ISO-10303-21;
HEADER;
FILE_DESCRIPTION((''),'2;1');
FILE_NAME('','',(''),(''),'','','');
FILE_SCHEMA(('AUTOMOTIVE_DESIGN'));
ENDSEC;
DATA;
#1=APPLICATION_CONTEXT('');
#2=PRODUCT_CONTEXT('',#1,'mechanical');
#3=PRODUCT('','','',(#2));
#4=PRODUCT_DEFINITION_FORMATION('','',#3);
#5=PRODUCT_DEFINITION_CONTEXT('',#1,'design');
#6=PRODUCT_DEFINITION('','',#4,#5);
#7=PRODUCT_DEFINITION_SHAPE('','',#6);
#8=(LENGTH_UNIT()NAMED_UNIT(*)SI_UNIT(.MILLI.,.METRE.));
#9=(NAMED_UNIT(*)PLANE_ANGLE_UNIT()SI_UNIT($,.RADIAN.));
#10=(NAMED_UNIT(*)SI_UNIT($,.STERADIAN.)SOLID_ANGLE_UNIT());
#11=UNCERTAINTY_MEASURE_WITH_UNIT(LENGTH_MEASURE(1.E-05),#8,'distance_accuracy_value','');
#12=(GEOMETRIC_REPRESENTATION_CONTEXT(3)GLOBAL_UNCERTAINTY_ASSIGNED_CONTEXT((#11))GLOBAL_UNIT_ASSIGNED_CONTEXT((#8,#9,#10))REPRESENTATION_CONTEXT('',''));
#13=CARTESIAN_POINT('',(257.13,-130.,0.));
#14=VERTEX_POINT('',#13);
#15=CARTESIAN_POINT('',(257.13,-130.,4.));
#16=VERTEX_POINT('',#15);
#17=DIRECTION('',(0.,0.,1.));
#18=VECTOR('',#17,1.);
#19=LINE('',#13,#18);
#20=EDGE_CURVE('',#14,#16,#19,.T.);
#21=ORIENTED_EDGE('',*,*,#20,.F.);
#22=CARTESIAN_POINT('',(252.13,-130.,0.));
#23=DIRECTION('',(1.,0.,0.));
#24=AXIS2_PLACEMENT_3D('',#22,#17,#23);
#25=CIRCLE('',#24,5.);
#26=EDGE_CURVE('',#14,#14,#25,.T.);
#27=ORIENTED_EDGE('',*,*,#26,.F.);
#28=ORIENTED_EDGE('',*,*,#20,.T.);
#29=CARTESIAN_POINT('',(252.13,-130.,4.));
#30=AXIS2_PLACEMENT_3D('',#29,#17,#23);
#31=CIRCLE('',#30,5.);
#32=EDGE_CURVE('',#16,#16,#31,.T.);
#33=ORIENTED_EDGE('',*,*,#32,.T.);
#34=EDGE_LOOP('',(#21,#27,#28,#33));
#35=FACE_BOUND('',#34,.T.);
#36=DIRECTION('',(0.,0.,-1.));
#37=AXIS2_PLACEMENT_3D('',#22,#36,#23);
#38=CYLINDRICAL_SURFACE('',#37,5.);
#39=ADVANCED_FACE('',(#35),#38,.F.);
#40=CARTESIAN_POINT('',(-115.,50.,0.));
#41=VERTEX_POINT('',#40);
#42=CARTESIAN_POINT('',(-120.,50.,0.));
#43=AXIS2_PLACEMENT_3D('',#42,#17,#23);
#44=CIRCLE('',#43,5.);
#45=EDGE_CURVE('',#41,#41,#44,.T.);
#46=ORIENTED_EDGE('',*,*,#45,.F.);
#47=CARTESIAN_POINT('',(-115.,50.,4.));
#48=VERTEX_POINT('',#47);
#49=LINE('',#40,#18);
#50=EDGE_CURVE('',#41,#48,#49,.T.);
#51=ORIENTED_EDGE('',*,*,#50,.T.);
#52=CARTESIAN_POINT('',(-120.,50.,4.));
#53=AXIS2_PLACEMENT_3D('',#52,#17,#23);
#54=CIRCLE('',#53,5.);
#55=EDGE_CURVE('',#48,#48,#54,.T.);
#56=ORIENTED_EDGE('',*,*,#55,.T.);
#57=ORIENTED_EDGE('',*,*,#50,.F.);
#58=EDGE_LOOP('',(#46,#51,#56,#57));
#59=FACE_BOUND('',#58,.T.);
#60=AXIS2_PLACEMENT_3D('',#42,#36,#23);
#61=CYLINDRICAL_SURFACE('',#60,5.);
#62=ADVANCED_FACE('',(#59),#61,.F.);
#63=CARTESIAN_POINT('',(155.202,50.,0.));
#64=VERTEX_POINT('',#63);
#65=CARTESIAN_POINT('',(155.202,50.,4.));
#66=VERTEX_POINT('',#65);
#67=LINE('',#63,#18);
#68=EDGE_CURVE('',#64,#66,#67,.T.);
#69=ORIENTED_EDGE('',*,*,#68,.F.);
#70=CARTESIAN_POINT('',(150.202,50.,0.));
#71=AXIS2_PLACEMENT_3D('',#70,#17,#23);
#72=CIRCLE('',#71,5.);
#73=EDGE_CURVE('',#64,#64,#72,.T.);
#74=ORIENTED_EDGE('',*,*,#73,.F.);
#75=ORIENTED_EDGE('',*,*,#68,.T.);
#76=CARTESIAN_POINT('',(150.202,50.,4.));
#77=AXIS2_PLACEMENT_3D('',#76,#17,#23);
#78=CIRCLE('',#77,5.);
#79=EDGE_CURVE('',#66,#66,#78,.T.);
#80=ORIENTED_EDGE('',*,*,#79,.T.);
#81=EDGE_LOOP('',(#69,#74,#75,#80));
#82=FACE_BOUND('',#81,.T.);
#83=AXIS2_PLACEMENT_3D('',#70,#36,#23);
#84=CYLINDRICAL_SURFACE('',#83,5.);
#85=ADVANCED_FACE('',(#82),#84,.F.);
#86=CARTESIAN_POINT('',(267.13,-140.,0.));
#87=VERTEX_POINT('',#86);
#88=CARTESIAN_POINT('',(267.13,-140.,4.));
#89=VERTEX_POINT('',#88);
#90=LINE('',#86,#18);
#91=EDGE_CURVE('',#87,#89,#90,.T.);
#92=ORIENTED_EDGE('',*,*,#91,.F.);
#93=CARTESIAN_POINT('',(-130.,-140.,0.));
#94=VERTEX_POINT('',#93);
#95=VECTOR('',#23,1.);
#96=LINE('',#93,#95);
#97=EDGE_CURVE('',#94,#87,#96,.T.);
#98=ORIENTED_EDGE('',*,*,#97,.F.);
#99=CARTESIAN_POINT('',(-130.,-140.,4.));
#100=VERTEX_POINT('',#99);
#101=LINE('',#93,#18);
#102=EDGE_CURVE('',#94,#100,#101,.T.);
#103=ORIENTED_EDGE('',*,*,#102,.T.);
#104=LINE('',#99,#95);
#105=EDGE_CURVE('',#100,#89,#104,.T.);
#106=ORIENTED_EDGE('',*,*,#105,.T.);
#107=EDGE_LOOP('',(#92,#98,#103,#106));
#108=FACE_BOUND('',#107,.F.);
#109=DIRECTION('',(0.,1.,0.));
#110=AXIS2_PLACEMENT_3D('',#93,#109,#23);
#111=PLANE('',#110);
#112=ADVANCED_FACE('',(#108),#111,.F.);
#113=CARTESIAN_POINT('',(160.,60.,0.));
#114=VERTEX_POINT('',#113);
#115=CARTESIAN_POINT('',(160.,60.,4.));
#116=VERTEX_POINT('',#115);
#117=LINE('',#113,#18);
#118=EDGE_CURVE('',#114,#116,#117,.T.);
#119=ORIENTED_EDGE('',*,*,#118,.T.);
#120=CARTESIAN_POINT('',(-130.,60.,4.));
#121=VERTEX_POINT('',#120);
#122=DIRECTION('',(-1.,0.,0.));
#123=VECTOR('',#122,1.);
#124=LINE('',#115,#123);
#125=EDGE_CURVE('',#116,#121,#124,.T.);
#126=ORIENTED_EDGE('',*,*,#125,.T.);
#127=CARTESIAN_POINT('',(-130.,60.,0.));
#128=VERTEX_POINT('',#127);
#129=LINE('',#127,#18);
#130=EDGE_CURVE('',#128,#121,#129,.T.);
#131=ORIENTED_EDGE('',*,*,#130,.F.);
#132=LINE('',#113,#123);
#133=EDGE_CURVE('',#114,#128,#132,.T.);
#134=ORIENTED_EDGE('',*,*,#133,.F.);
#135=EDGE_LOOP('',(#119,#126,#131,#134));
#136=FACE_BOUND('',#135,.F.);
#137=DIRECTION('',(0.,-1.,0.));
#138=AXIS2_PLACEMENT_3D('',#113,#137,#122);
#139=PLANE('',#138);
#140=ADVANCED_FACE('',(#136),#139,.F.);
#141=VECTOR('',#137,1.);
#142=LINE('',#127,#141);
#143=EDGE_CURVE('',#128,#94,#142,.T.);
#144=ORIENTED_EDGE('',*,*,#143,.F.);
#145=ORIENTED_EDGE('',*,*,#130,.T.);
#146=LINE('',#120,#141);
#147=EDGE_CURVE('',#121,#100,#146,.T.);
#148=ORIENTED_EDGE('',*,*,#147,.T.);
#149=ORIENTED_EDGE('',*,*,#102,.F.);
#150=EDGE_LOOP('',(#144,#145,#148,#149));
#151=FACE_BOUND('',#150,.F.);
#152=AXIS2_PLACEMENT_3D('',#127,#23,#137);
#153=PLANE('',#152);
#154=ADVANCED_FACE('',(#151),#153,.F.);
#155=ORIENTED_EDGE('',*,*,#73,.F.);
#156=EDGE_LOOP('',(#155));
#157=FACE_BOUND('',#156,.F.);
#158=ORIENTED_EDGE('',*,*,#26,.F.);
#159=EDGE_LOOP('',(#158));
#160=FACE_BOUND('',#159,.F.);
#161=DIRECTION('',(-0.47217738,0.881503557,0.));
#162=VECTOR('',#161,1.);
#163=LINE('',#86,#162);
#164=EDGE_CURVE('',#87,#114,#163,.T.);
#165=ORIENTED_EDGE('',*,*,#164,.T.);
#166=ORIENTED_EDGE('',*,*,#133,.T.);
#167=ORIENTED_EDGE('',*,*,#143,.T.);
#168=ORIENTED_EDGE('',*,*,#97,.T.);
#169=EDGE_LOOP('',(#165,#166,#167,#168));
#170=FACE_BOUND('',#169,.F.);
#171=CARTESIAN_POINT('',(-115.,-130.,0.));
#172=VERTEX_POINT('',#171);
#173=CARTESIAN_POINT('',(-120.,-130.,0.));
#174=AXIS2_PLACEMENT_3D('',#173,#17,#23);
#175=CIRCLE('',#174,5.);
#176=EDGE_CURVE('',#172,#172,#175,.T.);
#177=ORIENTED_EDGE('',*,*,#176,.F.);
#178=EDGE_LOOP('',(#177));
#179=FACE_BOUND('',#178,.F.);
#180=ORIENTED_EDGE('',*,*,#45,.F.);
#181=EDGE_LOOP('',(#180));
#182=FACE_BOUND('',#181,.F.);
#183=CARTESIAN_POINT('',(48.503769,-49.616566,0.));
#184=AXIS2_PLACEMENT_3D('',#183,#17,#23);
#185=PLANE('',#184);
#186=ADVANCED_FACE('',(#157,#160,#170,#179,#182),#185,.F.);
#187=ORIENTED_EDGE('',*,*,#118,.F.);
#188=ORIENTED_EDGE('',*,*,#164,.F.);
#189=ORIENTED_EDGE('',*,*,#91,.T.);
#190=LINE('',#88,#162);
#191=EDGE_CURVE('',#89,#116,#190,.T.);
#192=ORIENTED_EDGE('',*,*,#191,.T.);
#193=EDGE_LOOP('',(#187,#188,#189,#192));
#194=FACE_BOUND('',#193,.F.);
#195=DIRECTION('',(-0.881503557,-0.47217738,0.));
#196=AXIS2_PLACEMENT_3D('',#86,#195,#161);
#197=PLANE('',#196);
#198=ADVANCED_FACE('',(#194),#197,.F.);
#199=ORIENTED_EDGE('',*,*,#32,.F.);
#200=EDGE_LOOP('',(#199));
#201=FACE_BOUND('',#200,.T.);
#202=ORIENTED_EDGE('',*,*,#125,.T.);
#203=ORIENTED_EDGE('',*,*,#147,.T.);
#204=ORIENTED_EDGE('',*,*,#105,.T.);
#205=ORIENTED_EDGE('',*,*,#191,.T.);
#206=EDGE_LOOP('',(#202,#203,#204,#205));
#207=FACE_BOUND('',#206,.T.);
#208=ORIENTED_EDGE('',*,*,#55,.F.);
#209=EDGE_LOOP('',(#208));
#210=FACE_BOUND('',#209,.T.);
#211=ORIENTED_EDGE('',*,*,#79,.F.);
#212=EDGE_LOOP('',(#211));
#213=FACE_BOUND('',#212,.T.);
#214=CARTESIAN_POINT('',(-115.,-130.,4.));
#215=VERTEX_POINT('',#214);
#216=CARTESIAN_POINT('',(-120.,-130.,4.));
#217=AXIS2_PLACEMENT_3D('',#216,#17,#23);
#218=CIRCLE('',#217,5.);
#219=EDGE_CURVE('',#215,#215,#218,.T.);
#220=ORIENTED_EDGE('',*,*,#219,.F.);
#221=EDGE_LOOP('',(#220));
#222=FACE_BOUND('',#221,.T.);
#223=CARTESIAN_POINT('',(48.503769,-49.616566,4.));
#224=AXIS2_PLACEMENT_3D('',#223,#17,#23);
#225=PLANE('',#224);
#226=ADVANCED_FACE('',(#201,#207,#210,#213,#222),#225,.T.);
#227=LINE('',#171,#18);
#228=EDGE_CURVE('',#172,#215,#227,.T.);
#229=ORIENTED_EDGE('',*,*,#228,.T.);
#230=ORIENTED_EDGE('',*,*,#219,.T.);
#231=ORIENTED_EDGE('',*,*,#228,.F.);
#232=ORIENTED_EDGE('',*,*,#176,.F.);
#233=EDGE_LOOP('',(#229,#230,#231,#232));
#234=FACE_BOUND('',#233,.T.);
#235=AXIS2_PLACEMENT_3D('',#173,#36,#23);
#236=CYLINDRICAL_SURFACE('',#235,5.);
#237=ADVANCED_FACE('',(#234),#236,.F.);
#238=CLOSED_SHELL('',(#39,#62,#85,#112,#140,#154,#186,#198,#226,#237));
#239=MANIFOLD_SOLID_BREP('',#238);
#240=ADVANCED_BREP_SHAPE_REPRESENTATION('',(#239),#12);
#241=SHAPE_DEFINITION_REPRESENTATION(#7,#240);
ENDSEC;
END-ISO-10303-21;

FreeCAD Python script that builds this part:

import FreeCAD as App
import Part
import Sketcher
from FreeCAD import Vector
Q = App.Units.Quantity


def add_polygon(sketch, points):
    """Adds a closed chain of lines whose ends are joined by coincident constraints."""
    first, n = sketch.GeometryCount, len(points)
    for a, b in zip(points, points[1:] + points[:1]):
        sketch.addGeometry(Part.LineSegment(App.Vector(*a, 0), App.Vector(*b, 0)), False)
    for i in range(n):
        sketch.addConstraint(Sketcher.Constraint("Coincident", first + i, 2, first + (i + 1) % n, 1))

doc = App.newDocument("Part")
body = doc.addObject("PartDesign::Body", "Body")

# Sketch on XY plane
sketch1 = doc.addObject("Sketcher::SketchObject", "Sketch")
body.addObject(sketch1)
sketch1.AttachmentSupport = (doc.XY_Plane, [""])
sketch1.MapMode = "FlatFace"
add_polygon(sketch1, [(267, -140), (160, 60), (-130, 60), (-130, -140)])  # lines 0-3
sketch1.addGeometry(Part.Circle(Vector(-120, -130, 0), Vector(0, 0, 1), 5), False)  # 4
sketch1.addGeometry(Part.Circle(Vector(252, -130, 0), Vector(0, 0, 1), 5), False)  # 5
sketch1.addGeometry(Part.Circle(Vector(-120, 50, 0), Vector(0, 0, 1), 5), False)  # 6
sketch1.addGeometry(Part.Circle(Vector(150, 50, 0), Vector(0, 0, 1), 5), False)  # 7
sketch1.addConstraint([
    Sketcher.Constraint("Horizontal", 1),
    Sketcher.Constraint("Vertical", 2),
    Sketcher.Constraint("Horizontal", 3),
    Sketcher.Constraint("Equal", 4, 5),
    Sketcher.Constraint("Equal", 5, 6),
    Sketcher.Constraint("Equal", 6, 7),
    Sketcher.Constraint("Horizontal", 4, 3, 5, 3),
    Sketcher.Constraint("Horizontal", 6, 3, 7, 3),
    Sketcher.Constraint("Vertical", 4, 3, 6, 3),
    Sketcher.Constraint("Diameter", 4, Q("10 mm")),
    Sketcher.Constraint("DistanceX", 1, 2, 1, 1, Q("290 mm")),
    Sketcher.Constraint("DistanceY", 2, 2, 2, 1, Q("200 mm")),
    Sketcher.Constraint("DistanceX", 4, 3, -1, 1, Q("120 mm")),
    Sketcher.Constraint("DistanceY", 4, 3, -1, 1, Q("130 mm")),
    Sketcher.Constraint("DistanceY", -1, 1, 6, 3, Q("50 mm")),
    Sketcher.Constraint("DistanceX", -1, 1, 0, 2, Q("160 mm")),
    Sketcher.Constraint("DistanceY", -1, 1, 0, 2, Q("60 mm")),
    Sketcher.Constraint("DistanceX", 5, 3, 3, 2, Q("15 mm")),
    Sketcher.Constraint("DistanceX", 3, 1, 3, 2, Q("397.13 mm")),
    Sketcher.Constraint("DistanceX", -1, 1, 7, 3, Q("150.202 mm")),
])
pad1 = doc.addObject("PartDesign::Pad", "Pad")
body.addObject(pad1)
pad1.Profile = sketch1
pad1.Length = 4

doc.recompute()
